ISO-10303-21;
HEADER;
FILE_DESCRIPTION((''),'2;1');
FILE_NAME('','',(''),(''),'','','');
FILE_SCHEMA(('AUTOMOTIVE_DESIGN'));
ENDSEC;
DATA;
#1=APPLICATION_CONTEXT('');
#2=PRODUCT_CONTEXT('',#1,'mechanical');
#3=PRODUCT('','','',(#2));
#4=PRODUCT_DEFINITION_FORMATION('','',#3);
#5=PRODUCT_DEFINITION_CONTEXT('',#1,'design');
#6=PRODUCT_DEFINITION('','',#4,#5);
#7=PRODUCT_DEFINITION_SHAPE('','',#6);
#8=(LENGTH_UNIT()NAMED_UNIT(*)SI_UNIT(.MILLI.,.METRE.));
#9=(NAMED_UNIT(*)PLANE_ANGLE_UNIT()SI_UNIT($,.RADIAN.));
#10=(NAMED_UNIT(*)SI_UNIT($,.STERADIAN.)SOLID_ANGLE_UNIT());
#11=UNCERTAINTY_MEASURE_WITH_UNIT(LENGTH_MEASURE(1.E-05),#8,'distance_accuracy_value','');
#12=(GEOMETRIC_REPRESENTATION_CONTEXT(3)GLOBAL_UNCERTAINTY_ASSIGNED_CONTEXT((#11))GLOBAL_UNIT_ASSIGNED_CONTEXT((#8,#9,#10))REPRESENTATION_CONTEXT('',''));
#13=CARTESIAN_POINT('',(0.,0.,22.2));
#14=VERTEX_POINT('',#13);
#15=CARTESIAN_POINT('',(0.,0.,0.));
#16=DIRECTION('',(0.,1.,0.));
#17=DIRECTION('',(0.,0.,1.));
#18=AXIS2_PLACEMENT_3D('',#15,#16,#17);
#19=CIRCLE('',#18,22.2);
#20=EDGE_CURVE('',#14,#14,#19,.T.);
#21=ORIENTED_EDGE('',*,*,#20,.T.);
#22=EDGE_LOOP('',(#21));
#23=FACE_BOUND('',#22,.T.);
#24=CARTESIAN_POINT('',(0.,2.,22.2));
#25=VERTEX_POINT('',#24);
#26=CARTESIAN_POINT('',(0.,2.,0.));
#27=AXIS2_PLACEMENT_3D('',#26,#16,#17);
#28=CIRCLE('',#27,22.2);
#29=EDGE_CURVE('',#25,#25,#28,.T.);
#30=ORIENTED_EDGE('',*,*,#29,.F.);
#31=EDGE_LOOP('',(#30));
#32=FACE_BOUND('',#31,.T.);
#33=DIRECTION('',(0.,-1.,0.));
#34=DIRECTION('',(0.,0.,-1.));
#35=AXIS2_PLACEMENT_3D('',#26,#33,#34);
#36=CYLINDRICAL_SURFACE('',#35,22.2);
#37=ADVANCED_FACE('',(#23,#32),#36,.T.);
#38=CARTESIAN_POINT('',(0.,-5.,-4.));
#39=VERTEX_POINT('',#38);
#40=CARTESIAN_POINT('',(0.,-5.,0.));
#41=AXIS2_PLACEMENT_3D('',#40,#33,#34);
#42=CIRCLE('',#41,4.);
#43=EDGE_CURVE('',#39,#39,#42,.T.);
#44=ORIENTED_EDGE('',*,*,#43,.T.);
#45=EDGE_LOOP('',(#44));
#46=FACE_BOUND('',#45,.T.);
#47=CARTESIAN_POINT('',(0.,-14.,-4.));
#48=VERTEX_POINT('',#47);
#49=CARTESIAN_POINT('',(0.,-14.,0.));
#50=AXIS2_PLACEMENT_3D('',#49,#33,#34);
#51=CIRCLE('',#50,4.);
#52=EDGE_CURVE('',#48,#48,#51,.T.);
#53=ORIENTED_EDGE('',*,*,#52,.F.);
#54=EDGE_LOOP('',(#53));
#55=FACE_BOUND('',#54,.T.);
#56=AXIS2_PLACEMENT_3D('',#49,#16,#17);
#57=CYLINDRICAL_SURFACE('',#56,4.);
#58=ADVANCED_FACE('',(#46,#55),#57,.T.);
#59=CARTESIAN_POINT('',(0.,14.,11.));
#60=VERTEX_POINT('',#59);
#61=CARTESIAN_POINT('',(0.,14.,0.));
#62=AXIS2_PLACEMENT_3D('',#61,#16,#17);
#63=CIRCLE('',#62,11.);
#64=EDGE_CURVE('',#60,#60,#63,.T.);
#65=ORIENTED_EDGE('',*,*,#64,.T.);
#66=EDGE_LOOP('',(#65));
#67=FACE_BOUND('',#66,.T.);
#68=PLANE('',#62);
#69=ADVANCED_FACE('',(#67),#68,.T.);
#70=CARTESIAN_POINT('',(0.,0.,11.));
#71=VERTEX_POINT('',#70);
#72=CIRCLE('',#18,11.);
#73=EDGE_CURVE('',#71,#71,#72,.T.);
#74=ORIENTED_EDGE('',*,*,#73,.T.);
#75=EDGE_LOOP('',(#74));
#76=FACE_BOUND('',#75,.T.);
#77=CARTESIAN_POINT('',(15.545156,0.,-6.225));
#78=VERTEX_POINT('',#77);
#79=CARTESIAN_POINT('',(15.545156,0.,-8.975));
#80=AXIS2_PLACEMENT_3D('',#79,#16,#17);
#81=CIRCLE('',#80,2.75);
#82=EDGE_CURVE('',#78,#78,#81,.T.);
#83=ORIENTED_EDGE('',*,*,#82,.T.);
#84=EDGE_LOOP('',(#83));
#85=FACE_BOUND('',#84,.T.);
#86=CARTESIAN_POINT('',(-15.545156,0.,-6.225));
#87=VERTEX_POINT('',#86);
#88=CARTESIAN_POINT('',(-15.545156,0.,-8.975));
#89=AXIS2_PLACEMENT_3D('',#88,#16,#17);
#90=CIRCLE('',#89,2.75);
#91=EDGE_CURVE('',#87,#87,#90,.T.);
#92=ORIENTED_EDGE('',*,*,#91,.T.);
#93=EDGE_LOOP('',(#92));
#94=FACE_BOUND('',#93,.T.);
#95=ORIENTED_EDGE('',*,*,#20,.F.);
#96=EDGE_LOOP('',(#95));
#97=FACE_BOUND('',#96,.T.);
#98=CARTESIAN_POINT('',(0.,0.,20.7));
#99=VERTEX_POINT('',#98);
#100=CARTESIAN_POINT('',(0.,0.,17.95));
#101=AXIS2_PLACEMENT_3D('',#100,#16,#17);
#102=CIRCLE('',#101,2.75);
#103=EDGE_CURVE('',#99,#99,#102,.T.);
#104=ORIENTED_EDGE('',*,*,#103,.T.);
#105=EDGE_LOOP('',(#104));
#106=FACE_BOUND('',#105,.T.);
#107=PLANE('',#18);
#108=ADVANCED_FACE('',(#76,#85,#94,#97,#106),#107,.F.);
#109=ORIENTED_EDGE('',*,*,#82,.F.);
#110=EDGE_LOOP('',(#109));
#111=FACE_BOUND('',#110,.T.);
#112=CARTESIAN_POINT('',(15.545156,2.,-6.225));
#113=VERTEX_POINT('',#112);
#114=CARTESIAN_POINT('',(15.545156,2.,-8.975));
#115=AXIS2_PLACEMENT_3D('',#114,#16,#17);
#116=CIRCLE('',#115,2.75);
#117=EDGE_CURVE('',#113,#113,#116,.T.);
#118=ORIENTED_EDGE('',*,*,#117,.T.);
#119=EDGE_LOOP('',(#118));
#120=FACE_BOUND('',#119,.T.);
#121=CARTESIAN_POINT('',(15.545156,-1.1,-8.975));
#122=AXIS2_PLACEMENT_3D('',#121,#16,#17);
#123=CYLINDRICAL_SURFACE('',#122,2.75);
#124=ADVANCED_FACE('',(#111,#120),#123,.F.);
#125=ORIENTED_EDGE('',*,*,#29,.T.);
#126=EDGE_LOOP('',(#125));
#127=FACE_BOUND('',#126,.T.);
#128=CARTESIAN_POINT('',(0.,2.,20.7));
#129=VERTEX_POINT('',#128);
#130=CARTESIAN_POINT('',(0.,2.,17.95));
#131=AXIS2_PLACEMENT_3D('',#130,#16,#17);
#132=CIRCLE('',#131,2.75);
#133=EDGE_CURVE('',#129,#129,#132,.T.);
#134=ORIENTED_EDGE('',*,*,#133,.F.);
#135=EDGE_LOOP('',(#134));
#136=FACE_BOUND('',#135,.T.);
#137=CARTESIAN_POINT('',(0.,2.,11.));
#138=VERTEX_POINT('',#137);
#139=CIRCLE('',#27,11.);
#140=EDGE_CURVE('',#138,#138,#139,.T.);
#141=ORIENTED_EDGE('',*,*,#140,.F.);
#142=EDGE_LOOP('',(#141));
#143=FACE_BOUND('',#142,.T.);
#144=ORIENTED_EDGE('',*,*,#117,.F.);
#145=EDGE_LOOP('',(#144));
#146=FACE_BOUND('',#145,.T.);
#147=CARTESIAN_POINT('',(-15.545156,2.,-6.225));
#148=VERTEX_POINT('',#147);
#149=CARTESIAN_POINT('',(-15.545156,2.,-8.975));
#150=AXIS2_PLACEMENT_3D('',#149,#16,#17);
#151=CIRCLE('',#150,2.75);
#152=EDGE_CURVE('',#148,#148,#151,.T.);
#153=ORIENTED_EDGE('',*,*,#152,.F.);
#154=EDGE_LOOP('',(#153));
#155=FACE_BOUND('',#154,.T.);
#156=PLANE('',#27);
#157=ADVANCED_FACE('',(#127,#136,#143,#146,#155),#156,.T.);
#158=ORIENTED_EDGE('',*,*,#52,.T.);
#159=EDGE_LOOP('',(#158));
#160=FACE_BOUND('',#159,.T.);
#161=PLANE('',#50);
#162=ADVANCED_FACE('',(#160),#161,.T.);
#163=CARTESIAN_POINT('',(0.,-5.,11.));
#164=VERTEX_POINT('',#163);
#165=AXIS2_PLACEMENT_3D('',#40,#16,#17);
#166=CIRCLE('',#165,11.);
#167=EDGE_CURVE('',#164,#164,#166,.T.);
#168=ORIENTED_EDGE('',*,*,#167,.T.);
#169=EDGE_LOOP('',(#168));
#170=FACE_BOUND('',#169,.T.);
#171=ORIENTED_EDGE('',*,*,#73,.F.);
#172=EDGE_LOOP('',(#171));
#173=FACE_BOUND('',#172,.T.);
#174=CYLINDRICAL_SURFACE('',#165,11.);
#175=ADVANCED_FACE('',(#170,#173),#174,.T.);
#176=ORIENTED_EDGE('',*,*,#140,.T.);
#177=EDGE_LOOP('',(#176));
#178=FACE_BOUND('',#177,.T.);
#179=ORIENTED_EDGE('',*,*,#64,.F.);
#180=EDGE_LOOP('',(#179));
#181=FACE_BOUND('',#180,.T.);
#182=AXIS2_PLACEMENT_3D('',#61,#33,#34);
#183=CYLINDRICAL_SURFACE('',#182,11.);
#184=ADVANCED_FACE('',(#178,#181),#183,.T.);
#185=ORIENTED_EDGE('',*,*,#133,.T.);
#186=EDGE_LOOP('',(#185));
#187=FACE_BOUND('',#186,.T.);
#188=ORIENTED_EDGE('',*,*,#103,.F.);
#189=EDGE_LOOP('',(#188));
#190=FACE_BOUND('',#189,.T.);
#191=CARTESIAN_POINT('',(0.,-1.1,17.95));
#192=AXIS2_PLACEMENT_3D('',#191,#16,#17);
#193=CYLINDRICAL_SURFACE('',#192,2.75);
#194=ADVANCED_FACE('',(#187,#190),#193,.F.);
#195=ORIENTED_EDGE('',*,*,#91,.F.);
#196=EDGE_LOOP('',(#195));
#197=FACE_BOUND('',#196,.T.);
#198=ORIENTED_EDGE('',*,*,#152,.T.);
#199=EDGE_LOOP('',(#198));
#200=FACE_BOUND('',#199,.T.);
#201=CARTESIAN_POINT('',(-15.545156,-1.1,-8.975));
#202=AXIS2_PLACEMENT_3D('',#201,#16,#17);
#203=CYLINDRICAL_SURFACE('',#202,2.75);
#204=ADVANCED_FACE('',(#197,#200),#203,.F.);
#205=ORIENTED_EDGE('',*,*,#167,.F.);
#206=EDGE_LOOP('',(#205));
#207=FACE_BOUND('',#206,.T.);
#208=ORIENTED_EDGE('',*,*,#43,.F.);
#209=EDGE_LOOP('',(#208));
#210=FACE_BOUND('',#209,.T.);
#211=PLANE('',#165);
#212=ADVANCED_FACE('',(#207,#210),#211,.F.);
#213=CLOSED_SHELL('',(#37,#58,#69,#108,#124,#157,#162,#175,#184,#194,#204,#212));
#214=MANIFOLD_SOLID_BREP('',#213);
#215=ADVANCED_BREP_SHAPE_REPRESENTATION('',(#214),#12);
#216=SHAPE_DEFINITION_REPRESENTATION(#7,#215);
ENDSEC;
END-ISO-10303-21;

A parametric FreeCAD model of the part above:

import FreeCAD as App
import Part
import Sketcher

doc = App.newDocument("Part")
body = doc.addObject("PartDesign::Body", "Body")

# Sketch on XZ plane
sketch1 = body.newObject("Sketcher::SketchObject", "Sketch")
sketch1.AttachmentSupport = (doc.getObject("XZ_Plane"), [""])
sketch1.MapMode = "FlatFace"
sketch1.addGeometry(Part.Circle(App.Vector(0, 0, 0), App.Vector(0, 0, 1), 22), False)
sketch1.addConstraint(Sketcher.Constraint("Coincident", 0, 3, -1, 1))
sketch1.addConstraint(Sketcher.Constraint("Diameter", 0, 44.4))
pad1 = body.newObject("PartDesign::Pad", "Pad")
pad1.Profile = sketch1
pad1.Length = 2
pad1.Reversed = True

# Sketch on XZ plane
sketch2 = body.newObject("Sketcher::SketchObject", "Sketch001")
sketch2.AttachmentSupport = (doc.getObject("XZ_Plane"), [""])
sketch2.MapMode = "FlatFace"
sketch2.AttachmentOffset = App.Placement(App.Vector(0, 0, -2), App.Rotation())
sketch2.addGeometry(Part.Circle(App.Vector(0, 0, 0), App.Vector(0, 0, 1), 11), False)
sketch2.addConstraint(Sketcher.Constraint("Coincident", 0, 3, -1, 1))
sketch2.addConstraint(Sketcher.Constraint("Diameter", 0, 22.0))
pad2 = body.newObject("PartDesign::Pad", "Pad001")
pad2.Profile = sketch2
pad2.Length = 12
pad2.Reversed = True

# Sketch on XZ plane
sketch3 = body.newObject("Sketcher::SketchObject", "Sketch002")
sketch3.AttachmentSupport = (doc.getObject("XZ_Plane"), [""])
sketch3.MapMode = "FlatFace"
sketch3.AttachmentOffset = App.Placement(App.Vector(0, 0, -2), App.Rotation())
sketch3.addGeometry(Part.Circle(App.Vector(0, 0, 0), App.Vector(0, 0, 1), 11), False)
sketch3.addConstraint(Sketcher.Constraint("Coincident", 0, 3, -1, 1))
sketch3.addConstraint(Sketcher.Constraint("Diameter", 0, 22.0))
pad3 = body.newObject("PartDesign::Pad", "Pad002")
pad3.Profile = sketch3
pad3.Length = 7

# Sketch on XZ plane
sketch4 = body.newObject("Sketcher::SketchObject", "Sketch003")
sketch4.AttachmentSupport = (doc.getObject("XZ_Plane"), [""])
sketch4.MapMode = "FlatFace"
sketch4.AttachmentOffset = App.Placement(App.Vector(0, 0, 5), App.Rotation())
sketch4.addGeometry(Part.Circle(App.Vector(0, 0, 0), App.Vector(0, 0, 1), 4), False)
sketch4.addConstraint(Sketcher.Constraint("Coincident", 0, 3, -1, 1))
sketch4.addConstraint(Sketcher.Constraint("Diameter", 0, 8.0))
pad4 = body.newObject("PartDesign::Pad", "Pad003")
pad4.Profile = sketch4
pad4.Length = 9

# Sketch on XZ plane
sketch5 = body.newObject("Sketcher::SketchObject", "Sketch004")
sketch5.AttachmentSupport = (doc.getObject("XZ_Plane"), [""])
sketch5.MapMode = "FlatFace"
sketch5.AttachmentOffset = App.Placement(App.Vector(0, 0, -2), App.Rotation())
sketch5.addGeometry(Part.Circle(App.Vector(0, 17.9, 0), App.Vector(0, 0, 1), 2.8), False)
sketch5.addGeometry(Part.Circle(App.Vector(-15.5, -9, 0), App.Vector(0, 0, 1), 2.8), False)
sketch5.addGeometry(Part.Circle(App.Vector(15.5, -9, 0), App.Vector(0, 0, 1), 2.8), False)
sketch5.addConstraint(Sketcher.Constraint("Equal", 0, 1))
sketch5.addConstraint(Sketcher.Constraint("Equal", 1, 2))
sketch5.addConstraint(Sketcher.Constraint("Symmetric", 1, 3, 2, 3, -2))
sketch5.addConstraint(Sketcher.Constraint("PointOnObject", 0, 3, -2))
sketch5.addConstraint(Sketcher.Constraint("Diameter", 0, 5.5))
sketch5.addConstraint(Sketcher.Constraint("DistanceY", -1, 1, 0, 3, 17.95))
sketch5.addConstraint(Sketcher.Constraint("DistanceY", 1, 3, -1, 1, 8.975))
sketch5.addConstraint(Sketcher.Constraint("DistanceX", 1, 3, 2, 3, 31.090312))
pocket1 = body.newObject("PartDesign::Pocket", "Pocket")
pocket1.Profile = sketch5
pocket1.Length = 3.1
pocket1.Reversed = True

doc.recompute()
